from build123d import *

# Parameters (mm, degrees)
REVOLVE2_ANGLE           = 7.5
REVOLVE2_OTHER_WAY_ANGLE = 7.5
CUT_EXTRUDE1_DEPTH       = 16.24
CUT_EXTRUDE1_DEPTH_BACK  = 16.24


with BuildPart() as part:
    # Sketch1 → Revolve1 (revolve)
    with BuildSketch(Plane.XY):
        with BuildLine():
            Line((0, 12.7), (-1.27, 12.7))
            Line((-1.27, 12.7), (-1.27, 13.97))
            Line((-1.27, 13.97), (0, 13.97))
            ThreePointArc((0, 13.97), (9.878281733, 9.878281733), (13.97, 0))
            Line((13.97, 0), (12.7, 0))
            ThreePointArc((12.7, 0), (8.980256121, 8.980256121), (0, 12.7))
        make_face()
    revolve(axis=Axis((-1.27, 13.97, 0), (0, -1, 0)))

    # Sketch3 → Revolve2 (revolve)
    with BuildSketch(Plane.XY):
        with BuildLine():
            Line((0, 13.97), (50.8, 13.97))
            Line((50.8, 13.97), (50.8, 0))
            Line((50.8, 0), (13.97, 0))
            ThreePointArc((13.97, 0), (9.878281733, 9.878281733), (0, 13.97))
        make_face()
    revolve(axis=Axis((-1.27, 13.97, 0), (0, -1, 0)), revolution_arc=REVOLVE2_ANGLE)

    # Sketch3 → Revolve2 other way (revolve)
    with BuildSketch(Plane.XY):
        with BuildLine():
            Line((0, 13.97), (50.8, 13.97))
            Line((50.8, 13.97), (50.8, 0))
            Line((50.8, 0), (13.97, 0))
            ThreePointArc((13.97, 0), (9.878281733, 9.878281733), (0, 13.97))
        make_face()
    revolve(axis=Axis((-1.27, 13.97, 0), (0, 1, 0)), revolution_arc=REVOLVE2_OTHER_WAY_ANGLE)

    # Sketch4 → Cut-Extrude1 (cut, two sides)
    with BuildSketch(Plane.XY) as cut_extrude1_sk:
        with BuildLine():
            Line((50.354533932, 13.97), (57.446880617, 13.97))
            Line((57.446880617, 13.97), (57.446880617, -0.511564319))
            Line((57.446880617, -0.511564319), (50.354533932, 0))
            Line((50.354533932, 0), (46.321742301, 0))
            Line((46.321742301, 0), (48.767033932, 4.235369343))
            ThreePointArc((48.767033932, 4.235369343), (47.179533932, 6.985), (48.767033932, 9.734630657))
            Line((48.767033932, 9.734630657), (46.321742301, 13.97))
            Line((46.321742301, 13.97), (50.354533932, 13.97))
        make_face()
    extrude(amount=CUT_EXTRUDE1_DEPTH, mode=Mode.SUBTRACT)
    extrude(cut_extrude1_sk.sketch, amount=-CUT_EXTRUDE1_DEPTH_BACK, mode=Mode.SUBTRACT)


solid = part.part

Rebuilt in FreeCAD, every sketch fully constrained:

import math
import FreeCAD as App
import Part
import Sketcher

V = App.Vector
Q = App.Units.Quantity

doc = App.newDocument("Part")
body = doc.addObject("PartDesign::Body", "Body")

sketch1 = doc.addObject("Sketcher::SketchObject", "Sketch")
body.addObject(sketch1)
sketch1.AttachmentSupport = (doc.XY_Plane, [""])
sketch1.MapMode = "FlatFace"
sketch1.addGeometry(Part.LineSegment(V(-1.3, 12.7, 0), V(0, 12.7, 0)), False)
sketch1.addGeometry(Part.ArcOfCircle(Part.Circle(V(0, 0, 0), V(0, 0, 1), 12.7), math.radians(0), math.radians(90)), False)
sketch1.addGeometry(Part.LineSegment(V(12.7, 0, 0), V(14, 0, 0)), False)
sketch1.addGeometry(Part.ArcOfCircle(Part.Circle(V(0, 0, 0), V(0, 0, 1), 14), math.radians(0), math.radians(90)), False)
sketch1.addGeometry(Part.LineSegment(V(0, 14, 0), V(-1.3, 14, 0)), False)
sketch1.addGeometry(Part.LineSegment(V(-1.3, 14, 0), V(-1.3, 12.7, 0)), False)
sketch1.addGeometry(Part.LineSegment(V(-1.3, 14, 0), V(-1.3, 0, 0)), True)
sketch1.addConstraint(Sketcher.Constraint("Tangent", 0, 2, 1, 2))
sketch1.addConstraint(Sketcher.Constraint("Coincident", 1, 1, 2, 1))
sketch1.addConstraint(Sketcher.Constraint("Coincident", 2, 2, 3, 1))
sketch1.addConstraint(Sketcher.Constraint("Tangent", 3, 2, 4, 1))
sketch1.addConstraint(Sketcher.Constraint("Coincident", 4, 2, 5, 1))
sketch1.addConstraint(Sketcher.Constraint("Coincident", 5, 2, 0, 1))
sketch1.addConstraint(Sketcher.Constraint("Horizontal", 0))
sketch1.addConstraint(Sketcher.Constraint("Horizontal", 2))
sketch1.addConstraint(Sketcher.Constraint("Horizontal", 4))
sketch1.addConstraint(Sketcher.Constraint("Vertical", 5))
sketch1.addConstraint(Sketcher.Constraint("Vertical", 6))
sketch1.addConstraint(Sketcher.Constraint("Coincident", 1, 3, -1, 1))
sketch1.addConstraint(Sketcher.Constraint("Coincident", 3, 3, -1, 1))
sketch1.addConstraint(Sketcher.Constraint("Coincident", 6, 1, 4, 2))
sketch1.addConstraint(Sketcher.Constraint("PointOnObject", 1, 1, -1))
sketch1.addConstraint(Sketcher.Constraint("PointOnObject", 6, 2, -1))
sketch1.addConstraint(Sketcher.Constraint("Equal", 0, 2))
sketch1.addConstraint(Sketcher.Constraint("Radius", 1, Q("0.5 in")))
sketch1.addConstraint(Sketcher.Constraint("Radius", 3, Q("0.55 in")))
revolution = doc.addObject("PartDesign::Revolution", "Revolution")
body.addObject(revolution)
revolution.Profile = sketch1
revolution.ReferenceAxis = (sketch1, ["Axis0"])
revolution.Angle = 360

sketch2 = doc.addObject("Sketcher::SketchObject", "Sketch001")
body.addObject(sketch2)
sketch2.AttachmentSupport = (doc.XY_Plane, [""])
sketch2.MapMode = "FlatFace"
sketch2.addGeometry(Part.LineSegment(V(51, 14, 0), V(0, 14, 0)), False)
sketch2.addGeometry(Part.ArcOfCircle(Part.Circle(V(0, 0, 0), V(0, 0, 1), 14), math.radians(0), math.radians(90)), False)
sketch2.addGeometry(Part.LineSegment(V(14, 0, 0), V(51, 0, 0)), False)
sketch2.addGeometry(Part.LineSegment(V(51, 0, 0), V(51, 14, 0)), False)
sketch2.addGeometry(Part.LineSegment(V(-1, 14, 0), V(-1, 0, 0)), True)
sketch2.addConstraint(Sketcher.Constraint("Tangent", 0, 2, 1, 2))
sketch2.addConstraint(Sketcher.Constraint("Coincident", 1, 1, 2, 1))
sketch2.addConstraint(Sketcher.Constraint("Coincident", 2, 2, 3, 1))
sketch2.addConstraint(Sketcher.Constraint("Coincident", 3, 2, 0, 1))
sketch2.addConstraint(Sketcher.Constraint("Horizontal", 0))
sketch2.addConstraint(Sketcher.Constraint("Horizontal", 2))
sketch2.addConstraint(Sketcher.Constraint("Vertical", 3))
sketch2.addConstraint(Sketcher.Constraint("Vertical", 4))
sketch2.addConstraint(Sketcher.Constraint("Coincident", 1, 3, -1, 1))
sketch2.addConstraint(Sketcher.Constraint("PointOnObject", 1, 1, -1))
sketch2.addConstraint(Sketcher.Constraint("PointOnObject", 4, 2, -1))
sketch2.addConstraint(Sketcher.Constraint("Horizontal", 3, 2, 4, 1))
sketch2.addConstraint(Sketcher.Constraint("DistanceX", 0, 2, 0, 1, Q("2 in")))
sketch2.addConstraint(Sketcher.Constraint("Radius", 1, Q("0.55 in")))
sketch2.addConstraint(Sketcher.Constraint("DistanceX", 4, 1, 1, 1, Q("0.6 in")))
revolution2 = doc.addObject("PartDesign::Revolution", "Revolution001")
body.addObject(revolution2)
revolution2.Profile = sketch2
revolution2.ReferenceAxis = (sketch2, ["Axis0"])
revolution2.Angle = 7.5

sketch3 = doc.addObject("Sketcher::SketchObject", "Sketch002")
body.addObject(sketch3)
sketch3.AttachmentSupport = (doc.XY_Plane, [""])
sketch3.MapMode = "FlatFace"
sketch3.addGeometry(Part.LineSegment(V(51, 14, 0), V(0, 14, 0)), False)
sketch3.addGeometry(Part.ArcOfCircle(Part.Circle(V(0, 0, 0), V(0, 0, 1), 14), math.radians(0), math.radians(90)), False)
sketch3.addGeometry(Part.LineSegment(V(14, 0, 0), V(51, 0, 0)), False)
sketch3.addGeometry(Part.LineSegment(V(51, 0, 0), V(51, 14, 0)), False)
sketch3.addGeometry(Part.LineSegment(V(-1, 0, 0), V(-1, 14, 0)), True)
sketch3.addConstraint(Sketcher.Constraint("Tangent", 0, 2, 1, 2))
sketch3.addConstraint(Sketcher.Constraint("Coincident", 1, 1, 2, 1))
sketch3.addConstraint(Sketcher.Constraint("Coincident", 2, 2, 3, 1))
sketch3.addConstraint(Sketcher.Constraint("Coincident", 3, 2, 0, 1))
sketch3.addConstraint(Sketcher.Constraint("Horizontal", 0))
sketch3.addConstraint(Sketcher.Constraint("Horizontal", 2))
sketch3.addConstraint(Sketcher.Constraint("Vertical", 3))
sketch3.addConstraint(Sketcher.Constraint("Vertical", 4))
sketch3.addConstraint(Sketcher.Constraint("Coincident", 1, 3, -1, 1))
sketch3.addConstraint(Sketcher.Constraint("PointOnObject", 1, 1, -1))
sketch3.addConstraint(Sketcher.Constraint("PointOnObject", 4, 1, -1))
sketch3.addConstraint(Sketcher.Constraint("Horizontal", 3, 2, 4, 2))
sketch3.addConstraint(Sketcher.Constraint("DistanceX", 0, 2, 0, 1, Q("2 in")))
sketch3.addConstraint(Sketcher.Constraint("Radius", 1, Q("0.55 in")))
sketch3.addConstraint(Sketcher.Constraint("DistanceX", 4, 1, 1, 1, Q("0.6 in")))
revolution3 = doc.addObject("PartDesign::Revolution", "Revolution002")
body.addObject(revolution3)
revolution3.Profile = sketch3
revolution3.ReferenceAxis = (sketch3, ["Axis0"])
revolution3.Angle = 7.5

sketch4 = doc.addObject("Sketcher::SketchObject", "Sketch003")
body.addObject(sketch4)
sketch4.AttachmentSupport = (doc.XY_Plane, [""])
sketch4.MapMode = "FlatFace"
sketch4.addGeometry(Part.LineSegment(V(57.4, -0.5, 0), V(57.4, 14, 0)), False)
sketch4.addGeometry(Part.LineSegment(V(57.4, 14, 0), V(46.3, 14, 0)), False)
sketch4.addGeometry(Part.LineSegment(V(46.3, 14, 0), V(48.8, 9.7, 0)), False)
sketch4.addGeometry(Part.ArcOfCircle(Part.Circle(V(50.4, 7, 0), V(0, 0, 1), 3.2), math.radians(120), math.radians(240)), False)
sketch4.addGeometry(Part.LineSegment(V(48.8, 4.2, 0), V(46.3, 0, 0)), False)
sketch4.addGeometry(Part.LineSegment(V(46.3, 0, 0), V(50.4, 0, 0)), False)
sketch4.addGeometry(Part.LineSegment(V(50.4, 0, 0), V(57.4, -0.5, 0)), False)
sketch4.addConstraint(Sketcher.Constraint("Coincident", 0, 2, 1, 1))
sketch4.addConstraint(Sketcher.Constraint("Coincident", 1, 2, 2, 1))
sketch4.addConstraint(Sketcher.Constraint("Coincident", 2, 2, 3, 1))
sketch4.addConstraint(Sketcher.Constraint("Coincident", 3, 2, 4, 1))
sketch4.addConstraint(Sketcher.Constraint("Coincident", 4, 2, 5, 1))
sketch4.addConstraint(Sketcher.Constraint("Coincident", 5, 2, 6, 1))
sketch4.addConstraint(Sketcher.Constraint("Coincident", 6, 2, 0, 1))
sketch4.addConstraint(Sketcher.Constraint("Vertical", 0))
sketch4.addConstraint(Sketcher.Constraint("Horizontal", 1))
sketch4.addConstraint(Sketcher.Constraint("Horizontal", 5))
sketch4.addConstraint(Sketcher.Constraint("PointOnObject", 4, 2, -1))
sketch4.addConstraint(Sketcher.Constraint("Vertical", 2, 2, 3, 2))
sketch4.addConstraint(Sketcher.Constraint("Vertical", 1, 2, 4, 2))
sketch4.addConstraint(Sketcher.Constraint("Vertical", 3, 3, 5, 2))
sketch4.addConstraint(Sketcher.Constraint("Equal", 2, 4))
sketch4.addConstraint(Sketcher.Constraint("Angle", 2, Q("-60 deg")))
sketch4.addConstraint(Sketcher.Constraint("Radius", 3, Q("0.125 in")))
sketch4.addConstraint(Sketcher.Constraint("DistanceY", -1, 1, 0, 2, Q("0.55 in")))
sketch4.addConstraint(Sketcher.Constraint("DistanceX", 2, 2, 3, 3, Q("0.0625 in")))
sketch4.addConstraint(Sketcher.Constraint("DistanceX", 1, 2, 1, 1, Q("11.125138 mm")))
sketch4.addConstraint(Sketcher.Constraint("DistanceY", 0, 1, 0, 2, Q("14.481564 mm")))
sketch4.addConstraint(Sketcher.Constraint("DistanceX", -1, 1, 0, 2, Q("57.446881 mm")))
pocket1 = doc.addObject("PartDesign::Pocket", "Pocket")
body.addObject(pocket1)
pocket1.Profile = sketch4
pocket1.Type = "ThroughAll"
pocket1.Midplane = True

doc.recompute()
